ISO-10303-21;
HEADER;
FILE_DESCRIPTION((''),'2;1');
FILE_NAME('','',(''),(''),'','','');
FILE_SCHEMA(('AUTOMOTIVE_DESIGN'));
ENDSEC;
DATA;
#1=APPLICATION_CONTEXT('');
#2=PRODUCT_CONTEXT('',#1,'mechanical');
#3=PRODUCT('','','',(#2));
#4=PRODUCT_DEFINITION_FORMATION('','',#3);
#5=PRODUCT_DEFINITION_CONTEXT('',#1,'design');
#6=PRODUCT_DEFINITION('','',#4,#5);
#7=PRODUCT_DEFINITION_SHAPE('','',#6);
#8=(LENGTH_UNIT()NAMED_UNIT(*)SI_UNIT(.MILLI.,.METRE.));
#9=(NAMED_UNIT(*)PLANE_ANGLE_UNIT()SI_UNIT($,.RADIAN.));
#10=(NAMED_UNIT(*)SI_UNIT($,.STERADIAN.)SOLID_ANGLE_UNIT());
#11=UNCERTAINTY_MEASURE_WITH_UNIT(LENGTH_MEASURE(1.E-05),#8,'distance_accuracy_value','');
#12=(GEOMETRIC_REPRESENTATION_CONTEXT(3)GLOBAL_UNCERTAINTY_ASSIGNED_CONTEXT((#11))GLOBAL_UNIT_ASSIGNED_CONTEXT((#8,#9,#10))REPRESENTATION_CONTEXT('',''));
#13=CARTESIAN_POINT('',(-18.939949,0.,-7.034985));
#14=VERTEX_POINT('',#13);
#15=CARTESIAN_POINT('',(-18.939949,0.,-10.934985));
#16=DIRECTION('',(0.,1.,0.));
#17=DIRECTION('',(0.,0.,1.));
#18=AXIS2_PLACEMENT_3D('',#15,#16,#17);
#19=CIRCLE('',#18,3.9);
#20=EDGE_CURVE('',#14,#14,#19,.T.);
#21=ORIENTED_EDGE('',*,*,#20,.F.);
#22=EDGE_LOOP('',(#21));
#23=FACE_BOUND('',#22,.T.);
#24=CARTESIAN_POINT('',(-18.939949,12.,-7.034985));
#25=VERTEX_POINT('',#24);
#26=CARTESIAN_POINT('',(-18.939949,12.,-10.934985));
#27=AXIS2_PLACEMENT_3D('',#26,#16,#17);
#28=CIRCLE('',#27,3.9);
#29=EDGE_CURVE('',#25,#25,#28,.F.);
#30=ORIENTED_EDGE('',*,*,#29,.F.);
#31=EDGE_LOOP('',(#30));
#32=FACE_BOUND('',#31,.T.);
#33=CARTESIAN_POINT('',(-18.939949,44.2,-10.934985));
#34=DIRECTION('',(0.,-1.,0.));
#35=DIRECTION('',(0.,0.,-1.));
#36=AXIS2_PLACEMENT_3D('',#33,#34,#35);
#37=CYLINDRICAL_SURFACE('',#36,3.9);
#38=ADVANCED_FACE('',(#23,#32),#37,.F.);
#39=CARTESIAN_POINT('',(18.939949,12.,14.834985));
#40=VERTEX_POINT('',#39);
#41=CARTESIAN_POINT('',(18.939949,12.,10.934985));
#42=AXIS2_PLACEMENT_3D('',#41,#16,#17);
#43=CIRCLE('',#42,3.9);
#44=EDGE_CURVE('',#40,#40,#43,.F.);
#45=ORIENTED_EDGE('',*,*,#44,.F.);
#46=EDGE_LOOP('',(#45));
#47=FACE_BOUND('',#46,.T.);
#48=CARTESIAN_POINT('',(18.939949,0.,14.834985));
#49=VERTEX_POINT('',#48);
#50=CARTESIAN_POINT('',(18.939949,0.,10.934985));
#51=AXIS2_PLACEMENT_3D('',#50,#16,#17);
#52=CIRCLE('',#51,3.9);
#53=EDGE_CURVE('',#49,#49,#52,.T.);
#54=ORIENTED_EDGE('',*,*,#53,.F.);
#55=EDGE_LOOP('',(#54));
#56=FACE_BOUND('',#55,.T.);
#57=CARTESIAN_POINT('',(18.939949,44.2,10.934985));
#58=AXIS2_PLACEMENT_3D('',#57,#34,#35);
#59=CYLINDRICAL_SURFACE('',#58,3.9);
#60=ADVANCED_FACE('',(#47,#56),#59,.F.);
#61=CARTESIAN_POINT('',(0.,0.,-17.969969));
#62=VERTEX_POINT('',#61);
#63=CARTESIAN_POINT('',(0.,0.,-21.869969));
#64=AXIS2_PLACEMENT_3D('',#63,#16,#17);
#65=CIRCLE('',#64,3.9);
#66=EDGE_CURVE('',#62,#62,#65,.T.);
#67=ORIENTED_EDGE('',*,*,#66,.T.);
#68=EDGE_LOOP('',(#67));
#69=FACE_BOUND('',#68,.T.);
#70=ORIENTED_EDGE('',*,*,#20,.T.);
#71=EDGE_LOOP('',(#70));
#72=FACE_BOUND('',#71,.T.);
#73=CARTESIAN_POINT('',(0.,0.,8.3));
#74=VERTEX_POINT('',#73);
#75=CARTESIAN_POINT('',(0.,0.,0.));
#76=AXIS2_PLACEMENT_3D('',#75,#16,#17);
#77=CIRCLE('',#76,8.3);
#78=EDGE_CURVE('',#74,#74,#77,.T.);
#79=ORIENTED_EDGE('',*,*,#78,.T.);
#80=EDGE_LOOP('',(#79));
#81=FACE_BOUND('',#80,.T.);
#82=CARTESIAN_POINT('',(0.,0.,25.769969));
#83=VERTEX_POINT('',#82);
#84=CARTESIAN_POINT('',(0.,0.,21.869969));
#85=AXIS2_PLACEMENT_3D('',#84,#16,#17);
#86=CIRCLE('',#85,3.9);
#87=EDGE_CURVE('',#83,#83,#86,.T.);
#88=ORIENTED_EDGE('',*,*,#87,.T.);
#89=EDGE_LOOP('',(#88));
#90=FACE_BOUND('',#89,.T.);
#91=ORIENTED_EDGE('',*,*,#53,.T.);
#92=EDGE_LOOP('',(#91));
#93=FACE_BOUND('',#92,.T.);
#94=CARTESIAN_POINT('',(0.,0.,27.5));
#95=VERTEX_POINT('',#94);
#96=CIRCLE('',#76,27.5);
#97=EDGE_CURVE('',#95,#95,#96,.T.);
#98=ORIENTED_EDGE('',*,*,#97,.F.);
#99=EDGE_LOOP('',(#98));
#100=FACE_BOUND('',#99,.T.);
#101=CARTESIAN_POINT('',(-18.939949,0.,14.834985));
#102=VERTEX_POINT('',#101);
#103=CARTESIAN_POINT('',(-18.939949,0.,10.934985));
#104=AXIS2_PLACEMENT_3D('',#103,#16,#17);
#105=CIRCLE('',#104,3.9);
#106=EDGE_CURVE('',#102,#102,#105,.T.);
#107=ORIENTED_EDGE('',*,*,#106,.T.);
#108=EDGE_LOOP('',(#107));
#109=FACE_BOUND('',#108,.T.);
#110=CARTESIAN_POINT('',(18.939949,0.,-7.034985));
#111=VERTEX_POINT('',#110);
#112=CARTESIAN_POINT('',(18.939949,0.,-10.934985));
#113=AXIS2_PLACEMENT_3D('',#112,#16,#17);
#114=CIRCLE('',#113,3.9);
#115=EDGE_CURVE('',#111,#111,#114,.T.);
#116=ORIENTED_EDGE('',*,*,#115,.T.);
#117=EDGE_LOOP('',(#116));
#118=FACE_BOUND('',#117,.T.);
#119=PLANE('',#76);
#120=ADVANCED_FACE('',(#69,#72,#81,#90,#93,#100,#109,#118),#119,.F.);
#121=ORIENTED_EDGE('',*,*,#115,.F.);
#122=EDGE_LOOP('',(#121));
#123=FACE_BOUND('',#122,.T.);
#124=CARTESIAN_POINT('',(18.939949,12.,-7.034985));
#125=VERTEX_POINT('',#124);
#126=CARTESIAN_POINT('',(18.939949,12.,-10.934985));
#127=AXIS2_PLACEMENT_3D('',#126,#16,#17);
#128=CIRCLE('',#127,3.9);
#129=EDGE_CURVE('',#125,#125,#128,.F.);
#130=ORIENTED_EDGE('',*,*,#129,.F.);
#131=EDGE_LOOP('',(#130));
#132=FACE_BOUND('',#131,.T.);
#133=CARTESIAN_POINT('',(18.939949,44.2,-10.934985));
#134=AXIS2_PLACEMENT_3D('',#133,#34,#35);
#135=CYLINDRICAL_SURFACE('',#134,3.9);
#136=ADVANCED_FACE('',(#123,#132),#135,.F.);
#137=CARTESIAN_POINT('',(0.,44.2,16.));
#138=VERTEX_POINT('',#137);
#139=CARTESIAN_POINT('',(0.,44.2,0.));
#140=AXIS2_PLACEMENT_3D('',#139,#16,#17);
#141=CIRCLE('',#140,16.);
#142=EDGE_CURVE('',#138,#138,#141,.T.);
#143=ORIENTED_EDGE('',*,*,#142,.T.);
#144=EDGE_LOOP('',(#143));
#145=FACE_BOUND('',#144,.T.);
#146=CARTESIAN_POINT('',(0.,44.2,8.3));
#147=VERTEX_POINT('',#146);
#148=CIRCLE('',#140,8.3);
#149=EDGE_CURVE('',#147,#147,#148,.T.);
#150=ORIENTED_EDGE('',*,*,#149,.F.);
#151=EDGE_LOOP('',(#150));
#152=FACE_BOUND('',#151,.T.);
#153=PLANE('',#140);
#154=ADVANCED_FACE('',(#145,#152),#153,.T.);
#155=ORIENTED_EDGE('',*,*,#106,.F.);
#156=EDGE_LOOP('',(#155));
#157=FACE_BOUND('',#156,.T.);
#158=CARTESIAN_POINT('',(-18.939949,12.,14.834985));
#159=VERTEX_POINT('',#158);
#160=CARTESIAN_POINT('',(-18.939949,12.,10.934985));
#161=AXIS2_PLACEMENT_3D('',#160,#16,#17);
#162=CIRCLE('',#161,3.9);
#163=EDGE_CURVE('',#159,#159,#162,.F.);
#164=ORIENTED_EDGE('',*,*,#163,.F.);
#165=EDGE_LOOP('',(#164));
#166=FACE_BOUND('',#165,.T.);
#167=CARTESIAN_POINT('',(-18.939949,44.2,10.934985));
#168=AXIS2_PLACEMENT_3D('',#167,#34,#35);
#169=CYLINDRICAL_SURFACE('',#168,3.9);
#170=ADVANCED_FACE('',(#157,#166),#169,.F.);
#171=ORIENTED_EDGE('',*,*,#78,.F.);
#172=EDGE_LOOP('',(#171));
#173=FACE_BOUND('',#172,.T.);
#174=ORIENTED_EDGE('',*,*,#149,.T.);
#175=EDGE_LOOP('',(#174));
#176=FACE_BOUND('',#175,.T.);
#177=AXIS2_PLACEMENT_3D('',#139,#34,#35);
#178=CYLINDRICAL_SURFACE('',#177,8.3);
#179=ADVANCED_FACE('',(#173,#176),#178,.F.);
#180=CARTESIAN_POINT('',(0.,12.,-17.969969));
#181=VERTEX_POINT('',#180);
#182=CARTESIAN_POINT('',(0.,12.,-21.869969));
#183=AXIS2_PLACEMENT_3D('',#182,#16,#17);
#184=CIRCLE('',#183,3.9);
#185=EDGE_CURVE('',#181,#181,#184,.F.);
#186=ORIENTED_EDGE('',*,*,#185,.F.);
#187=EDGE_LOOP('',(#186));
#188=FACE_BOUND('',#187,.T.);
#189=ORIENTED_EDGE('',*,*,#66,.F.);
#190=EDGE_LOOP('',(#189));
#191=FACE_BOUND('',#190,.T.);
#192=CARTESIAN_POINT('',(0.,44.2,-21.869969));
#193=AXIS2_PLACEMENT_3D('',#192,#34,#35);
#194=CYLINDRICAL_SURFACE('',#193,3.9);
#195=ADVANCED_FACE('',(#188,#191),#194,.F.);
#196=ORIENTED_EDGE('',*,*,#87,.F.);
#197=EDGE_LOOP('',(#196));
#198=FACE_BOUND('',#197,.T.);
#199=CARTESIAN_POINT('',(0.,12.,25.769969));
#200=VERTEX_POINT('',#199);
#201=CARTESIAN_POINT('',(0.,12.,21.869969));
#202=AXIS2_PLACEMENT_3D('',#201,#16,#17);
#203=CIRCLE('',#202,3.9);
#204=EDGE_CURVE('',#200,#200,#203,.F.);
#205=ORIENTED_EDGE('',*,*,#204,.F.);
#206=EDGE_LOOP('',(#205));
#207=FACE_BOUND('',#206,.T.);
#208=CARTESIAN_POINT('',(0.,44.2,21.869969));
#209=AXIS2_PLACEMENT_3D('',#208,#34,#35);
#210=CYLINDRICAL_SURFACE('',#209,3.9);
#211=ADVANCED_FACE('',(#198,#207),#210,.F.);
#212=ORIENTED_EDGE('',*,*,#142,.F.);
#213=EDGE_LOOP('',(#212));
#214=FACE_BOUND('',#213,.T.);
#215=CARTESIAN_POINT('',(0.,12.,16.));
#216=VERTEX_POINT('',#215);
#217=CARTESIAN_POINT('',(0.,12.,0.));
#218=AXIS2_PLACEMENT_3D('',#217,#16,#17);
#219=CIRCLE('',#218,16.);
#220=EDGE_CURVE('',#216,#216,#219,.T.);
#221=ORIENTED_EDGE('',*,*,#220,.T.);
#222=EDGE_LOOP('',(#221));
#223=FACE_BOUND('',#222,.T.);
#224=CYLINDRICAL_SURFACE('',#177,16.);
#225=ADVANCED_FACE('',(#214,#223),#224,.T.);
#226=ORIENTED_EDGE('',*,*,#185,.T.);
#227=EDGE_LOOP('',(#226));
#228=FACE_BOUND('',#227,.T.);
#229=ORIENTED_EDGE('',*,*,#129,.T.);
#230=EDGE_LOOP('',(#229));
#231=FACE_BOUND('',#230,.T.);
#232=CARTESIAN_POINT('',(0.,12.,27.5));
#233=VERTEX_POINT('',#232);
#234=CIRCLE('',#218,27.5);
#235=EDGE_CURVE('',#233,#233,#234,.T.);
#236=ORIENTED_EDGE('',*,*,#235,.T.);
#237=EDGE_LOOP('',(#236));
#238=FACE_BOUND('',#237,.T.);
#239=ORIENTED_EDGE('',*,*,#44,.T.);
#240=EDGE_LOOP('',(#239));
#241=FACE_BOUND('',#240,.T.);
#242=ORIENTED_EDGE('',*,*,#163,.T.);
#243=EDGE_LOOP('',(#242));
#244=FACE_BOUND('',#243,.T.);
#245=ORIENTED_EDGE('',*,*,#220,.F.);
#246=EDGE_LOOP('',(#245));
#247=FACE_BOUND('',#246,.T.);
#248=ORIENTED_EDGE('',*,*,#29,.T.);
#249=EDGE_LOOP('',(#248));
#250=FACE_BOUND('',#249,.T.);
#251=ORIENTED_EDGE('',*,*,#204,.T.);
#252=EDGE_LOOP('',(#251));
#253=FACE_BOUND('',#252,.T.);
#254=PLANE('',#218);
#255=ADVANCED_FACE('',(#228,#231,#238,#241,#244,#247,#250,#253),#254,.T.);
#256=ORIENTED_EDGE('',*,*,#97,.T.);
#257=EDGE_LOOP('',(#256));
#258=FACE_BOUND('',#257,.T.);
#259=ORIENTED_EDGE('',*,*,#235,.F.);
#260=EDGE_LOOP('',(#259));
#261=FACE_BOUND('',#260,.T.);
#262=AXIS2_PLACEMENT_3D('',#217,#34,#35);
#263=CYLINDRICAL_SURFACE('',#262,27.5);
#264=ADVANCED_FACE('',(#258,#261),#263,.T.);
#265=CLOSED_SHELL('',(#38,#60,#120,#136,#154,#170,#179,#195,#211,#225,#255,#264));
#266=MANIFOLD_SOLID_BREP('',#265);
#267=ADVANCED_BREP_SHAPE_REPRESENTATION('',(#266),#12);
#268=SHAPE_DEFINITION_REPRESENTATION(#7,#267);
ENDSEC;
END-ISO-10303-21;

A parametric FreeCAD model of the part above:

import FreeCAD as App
import Part
import Sketcher
Q = App.Units.Quantity

doc = App.newDocument("Part")
params = doc.addObject("Spreadsheet::Sheet", "Params")
for row, (alias, value) in enumerate([
    ("sketch1_diameter", "55 mm"),
    ("sketch1_diameter2", "32 mm"),
    ("pad1_length", "12 mm"),
    ("sketch2_diameter", "32 mm"),
    ("pad2_length", "44.2 mm"),
    ("sketch3_diameter", "16.6 mm"),
    ("sketch3_diameter2", "7.8 mm"),
], start=1):
    params.set(f"A{row}", alias)
    params.set(f"B{row}", "=" + value)
    params.setAlias(f"B{row}", alias)

body = doc.addObject("PartDesign::Body", "Body")

sketch1 = body.newObject("Sketcher::SketchObject", "Sketch")
sketch1.AttachmentSupport = (doc.getObject("XZ_Plane"), [""])
sketch1.MapMode = "FlatFace"
sketch1.addGeometry([
    Part.Circle(App.Vector(0, 0, 0), App.Vector(0, 0, 1), 28),
    Part.Circle(App.Vector(0, 0, 0), App.Vector(0, 0, 1), 16),
], False)
sketch1.addConstraint([
    Sketcher.Constraint("Coincident", 0, 3, -1, 1),
    Sketcher.Constraint("Coincident", 1, 3, -1, 1),
    Sketcher.Constraint("Diameter", 0, Q("55 mm")),
    Sketcher.Constraint("Diameter", 1, Q("32 mm")),
])
sketch1.setExpression("Constraints[2]", "Params.sketch1_diameter")
sketch1.setExpression("Constraints[3]", "Params.sketch1_diameter2")
pad1 = body.newObject("PartDesign::Pad", "Pad")
pad1.Profile = sketch1
pad1.setExpression("Length", "Params.pad1_length")
pad1.Reversed = True

sketch2 = body.newObject("Sketcher::SketchObject", "Sketch001")
sketch2.AttachmentSupport = (doc.getObject("XZ_Plane"), [""])
sketch2.MapMode = "FlatFace"
sketch2.addGeometry(Part.Circle(App.Vector(0, 0, 0), App.Vector(0, 0, 1), 16), False)
sketch2.addConstraint([
    Sketcher.Constraint("Coincident", 0, 3, -1, 1),
    Sketcher.Constraint("Diameter", 0, Q("32 mm")),
])
sketch2.setExpression("Constraints[1]", "Params.sketch2_diameter")
pad2 = body.newObject("PartDesign::Pad", "Pad001")
pad2.Profile = sketch2
pad2.setExpression("Length", "Params.pad2_length")
pad2.Reversed = True

sketch3 = body.newObject("Sketcher::SketchObject", "Sketch002")
sketch3.AttachmentSupport = (doc.getObject("XZ_Plane"), [""])
sketch3.MapMode = "FlatFace"
sketch3.addGeometry([
    Part.Circle(App.Vector(0, 0, 0), App.Vector(0, 0, 1), 8.3),
    Part.Circle(App.Vector(0, 21.9, 0), App.Vector(0, 0, 1), 3.9),
    Part.Circle(App.Vector(-18.9, 10.9, 0), App.Vector(0, 0, 1), 3.9),
    Part.Circle(App.Vector(-18.9, -10.9, 0), App.Vector(0, 0, 1), 3.9),
    Part.Circle(App.Vector(0, -21.9, 0), App.Vector(0, 0, 1), 3.9),
    Part.Circle(App.Vector(18.9, -10.9, 0), App.Vector(0, 0, 1), 3.9),
    Part.Circle(App.Vector(18.9, 10.9, 0), App.Vector(0, 0, 1), 3.9),
], False)
sketch3.addConstraint([
    Sketcher.Constraint("Coincident", 0, 3, -1, 1),
    Sketcher.Constraint("Equal", 1, 2),
    Sketcher.Constraint("Equal", 2, 3),
    Sketcher.Constraint("Equal", 3, 4),
    Sketcher.Constraint("Equal", 4, 5),
    Sketcher.Constraint("Equal", 5, 6),
    Sketcher.Constraint("Symmetric", 1, 3, 4, 3, -1, 1),
    Sketcher.Constraint("Symmetric", 2, 3, 5, 3, -1, 1),
    Sketcher.Constraint("Symmetric", 3, 3, 6, 3, -1, 1),
    Sketcher.Constraint("Symmetric", 3, 3, 5, 3, -2),
    Sketcher.Constraint("PointOnObject", 1, 3, -2),
    Sketcher.Constraint("Diameter", 0, Q("16.6 mm")),
    Sketcher.Constraint("Diameter", 1, Q("7.8 mm")),
    Sketcher.Constraint("DistanceY", -1, 1, 1, 3, Q("21.869969 mm")),
    Sketcher.Constraint("DistanceX", 2, 3, -1, 1, Q("18.939949 mm")),
    Sketcher.Constraint("DistanceY", 3, 3, 2, 3, Q("21.869969 mm")),
])
sketch3.setExpression("Constraints[11]", "Params.sketch3_diameter")
sketch3.setExpression("Constraints[12]", "Params.sketch3_diameter2")
pocket1 = body.newObject("PartDesign::Pocket", "Pocket")
pocket1.Profile = sketch3
pocket1.Type = "ThroughAll"

doc.recompute()
